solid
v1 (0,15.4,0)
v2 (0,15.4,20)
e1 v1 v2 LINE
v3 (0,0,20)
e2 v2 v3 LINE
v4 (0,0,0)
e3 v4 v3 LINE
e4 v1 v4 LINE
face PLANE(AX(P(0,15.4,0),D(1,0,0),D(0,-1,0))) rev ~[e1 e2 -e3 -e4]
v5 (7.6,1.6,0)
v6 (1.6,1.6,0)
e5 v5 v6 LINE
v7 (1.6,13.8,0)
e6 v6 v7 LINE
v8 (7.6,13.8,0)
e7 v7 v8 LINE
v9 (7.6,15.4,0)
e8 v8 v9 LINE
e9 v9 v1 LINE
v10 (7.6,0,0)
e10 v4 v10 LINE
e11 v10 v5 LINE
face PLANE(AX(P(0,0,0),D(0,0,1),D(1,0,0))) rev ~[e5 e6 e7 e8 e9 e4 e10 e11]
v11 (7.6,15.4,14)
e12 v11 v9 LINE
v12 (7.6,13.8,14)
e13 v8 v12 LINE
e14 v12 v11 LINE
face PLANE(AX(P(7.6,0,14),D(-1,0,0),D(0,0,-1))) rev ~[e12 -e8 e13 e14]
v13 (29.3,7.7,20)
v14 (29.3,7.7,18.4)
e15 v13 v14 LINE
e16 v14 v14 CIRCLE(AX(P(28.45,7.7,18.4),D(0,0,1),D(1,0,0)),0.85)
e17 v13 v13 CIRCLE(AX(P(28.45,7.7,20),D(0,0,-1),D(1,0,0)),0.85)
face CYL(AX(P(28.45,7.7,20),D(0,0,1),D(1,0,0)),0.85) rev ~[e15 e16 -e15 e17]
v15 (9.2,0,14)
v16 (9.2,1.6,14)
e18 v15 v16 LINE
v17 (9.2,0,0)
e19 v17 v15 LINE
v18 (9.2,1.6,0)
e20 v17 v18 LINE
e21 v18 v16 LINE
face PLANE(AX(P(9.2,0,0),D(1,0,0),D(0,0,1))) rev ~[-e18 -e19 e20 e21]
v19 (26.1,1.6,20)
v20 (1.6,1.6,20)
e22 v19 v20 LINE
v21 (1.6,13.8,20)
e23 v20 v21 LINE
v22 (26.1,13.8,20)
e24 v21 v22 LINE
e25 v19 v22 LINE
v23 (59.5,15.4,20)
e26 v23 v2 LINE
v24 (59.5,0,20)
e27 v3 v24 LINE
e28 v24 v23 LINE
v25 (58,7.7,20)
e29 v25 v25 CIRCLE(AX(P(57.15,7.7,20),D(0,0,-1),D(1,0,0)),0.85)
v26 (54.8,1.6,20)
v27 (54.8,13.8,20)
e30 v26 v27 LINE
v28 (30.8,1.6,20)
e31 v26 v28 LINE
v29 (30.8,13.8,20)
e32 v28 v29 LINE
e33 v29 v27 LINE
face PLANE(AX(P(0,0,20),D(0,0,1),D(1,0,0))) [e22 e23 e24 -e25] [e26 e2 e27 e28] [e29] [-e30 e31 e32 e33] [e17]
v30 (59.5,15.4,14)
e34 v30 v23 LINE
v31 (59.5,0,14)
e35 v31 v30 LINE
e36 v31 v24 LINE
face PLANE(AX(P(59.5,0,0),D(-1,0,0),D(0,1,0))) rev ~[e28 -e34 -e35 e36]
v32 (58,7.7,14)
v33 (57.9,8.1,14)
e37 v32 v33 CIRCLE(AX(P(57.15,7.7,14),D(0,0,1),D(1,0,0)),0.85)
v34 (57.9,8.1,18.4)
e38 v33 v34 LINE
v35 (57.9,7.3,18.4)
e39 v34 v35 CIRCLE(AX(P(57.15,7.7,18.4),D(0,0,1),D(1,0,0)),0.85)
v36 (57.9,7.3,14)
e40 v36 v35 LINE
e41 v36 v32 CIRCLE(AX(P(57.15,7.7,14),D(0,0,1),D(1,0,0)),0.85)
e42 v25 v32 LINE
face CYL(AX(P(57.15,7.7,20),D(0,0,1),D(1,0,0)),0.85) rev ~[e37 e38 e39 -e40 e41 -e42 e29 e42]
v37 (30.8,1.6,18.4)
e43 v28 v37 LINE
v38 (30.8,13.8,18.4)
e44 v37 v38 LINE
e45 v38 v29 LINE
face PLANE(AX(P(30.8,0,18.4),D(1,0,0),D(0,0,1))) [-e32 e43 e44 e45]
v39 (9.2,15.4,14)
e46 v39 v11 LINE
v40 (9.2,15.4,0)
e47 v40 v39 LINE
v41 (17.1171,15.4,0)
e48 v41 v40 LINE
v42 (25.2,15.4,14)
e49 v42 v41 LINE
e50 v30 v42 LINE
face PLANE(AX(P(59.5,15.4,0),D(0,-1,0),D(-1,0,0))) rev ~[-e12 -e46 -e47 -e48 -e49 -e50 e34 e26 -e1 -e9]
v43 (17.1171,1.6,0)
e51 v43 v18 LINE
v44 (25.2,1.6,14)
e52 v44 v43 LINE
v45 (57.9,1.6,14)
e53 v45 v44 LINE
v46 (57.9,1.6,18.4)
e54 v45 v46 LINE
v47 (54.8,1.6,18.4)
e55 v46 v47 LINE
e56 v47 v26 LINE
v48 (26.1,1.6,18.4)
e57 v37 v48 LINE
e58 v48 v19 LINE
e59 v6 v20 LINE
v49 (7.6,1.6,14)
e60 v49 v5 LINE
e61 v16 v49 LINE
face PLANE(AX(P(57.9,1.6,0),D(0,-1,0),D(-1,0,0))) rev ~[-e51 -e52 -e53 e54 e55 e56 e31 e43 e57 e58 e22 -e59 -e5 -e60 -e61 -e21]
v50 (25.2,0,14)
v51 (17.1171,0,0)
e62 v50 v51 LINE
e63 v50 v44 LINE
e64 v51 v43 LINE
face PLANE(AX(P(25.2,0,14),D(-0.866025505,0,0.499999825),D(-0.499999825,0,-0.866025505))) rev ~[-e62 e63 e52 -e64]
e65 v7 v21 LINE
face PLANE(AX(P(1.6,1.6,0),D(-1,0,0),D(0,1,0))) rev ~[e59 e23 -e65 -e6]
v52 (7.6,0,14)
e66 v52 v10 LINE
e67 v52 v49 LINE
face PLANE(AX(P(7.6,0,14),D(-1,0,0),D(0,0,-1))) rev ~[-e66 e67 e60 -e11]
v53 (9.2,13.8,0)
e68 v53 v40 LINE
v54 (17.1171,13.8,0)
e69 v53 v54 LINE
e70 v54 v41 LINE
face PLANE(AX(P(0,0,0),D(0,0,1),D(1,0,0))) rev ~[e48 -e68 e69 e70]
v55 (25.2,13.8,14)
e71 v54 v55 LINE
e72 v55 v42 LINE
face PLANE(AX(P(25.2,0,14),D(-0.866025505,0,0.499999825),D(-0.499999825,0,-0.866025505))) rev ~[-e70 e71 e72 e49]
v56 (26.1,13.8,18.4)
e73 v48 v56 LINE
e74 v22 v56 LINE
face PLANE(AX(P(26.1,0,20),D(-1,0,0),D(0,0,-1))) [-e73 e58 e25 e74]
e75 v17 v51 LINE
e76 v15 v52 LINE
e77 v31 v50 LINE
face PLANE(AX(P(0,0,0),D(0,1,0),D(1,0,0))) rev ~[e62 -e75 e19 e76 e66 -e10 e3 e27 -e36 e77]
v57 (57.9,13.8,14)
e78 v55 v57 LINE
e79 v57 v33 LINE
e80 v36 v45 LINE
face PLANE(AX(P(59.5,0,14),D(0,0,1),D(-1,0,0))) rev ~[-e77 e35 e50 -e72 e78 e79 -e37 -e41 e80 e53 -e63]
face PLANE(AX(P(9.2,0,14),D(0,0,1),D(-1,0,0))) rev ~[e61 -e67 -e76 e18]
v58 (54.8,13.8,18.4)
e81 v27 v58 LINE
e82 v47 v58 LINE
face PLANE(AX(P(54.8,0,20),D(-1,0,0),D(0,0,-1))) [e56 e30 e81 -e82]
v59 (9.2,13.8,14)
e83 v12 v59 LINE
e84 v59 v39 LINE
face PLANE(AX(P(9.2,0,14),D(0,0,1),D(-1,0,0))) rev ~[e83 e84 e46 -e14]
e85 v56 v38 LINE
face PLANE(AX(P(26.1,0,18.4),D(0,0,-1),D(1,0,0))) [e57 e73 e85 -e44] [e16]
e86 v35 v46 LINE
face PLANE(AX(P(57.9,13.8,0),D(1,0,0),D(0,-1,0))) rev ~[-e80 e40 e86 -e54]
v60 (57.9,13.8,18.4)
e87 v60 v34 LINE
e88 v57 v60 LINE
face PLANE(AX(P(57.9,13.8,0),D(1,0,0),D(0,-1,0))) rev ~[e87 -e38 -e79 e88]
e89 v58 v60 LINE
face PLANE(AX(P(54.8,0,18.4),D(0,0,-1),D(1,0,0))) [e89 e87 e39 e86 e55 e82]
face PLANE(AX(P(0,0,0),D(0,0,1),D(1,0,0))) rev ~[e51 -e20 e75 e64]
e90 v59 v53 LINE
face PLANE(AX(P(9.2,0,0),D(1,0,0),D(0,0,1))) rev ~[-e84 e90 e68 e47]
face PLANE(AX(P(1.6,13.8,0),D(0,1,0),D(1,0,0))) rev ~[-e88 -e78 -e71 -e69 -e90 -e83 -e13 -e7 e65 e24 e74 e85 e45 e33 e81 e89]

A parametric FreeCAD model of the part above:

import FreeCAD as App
import Part
import Sketcher
from FreeCAD import Vector
Q = App.Units.Quantity


def add_polygon(sketch, points):
    """Adds a closed chain of lines whose ends are joined by coincident constraints."""
    first, n = sketch.GeometryCount, len(points)
    for a, b in zip(points, points[1:] + points[:1]):
        sketch.addGeometry(Part.LineSegment(App.Vector(*a, 0), App.Vector(*b, 0)), False)
    for i in range(n):
        sketch.addConstraint(Sketcher.Constraint("Coincident", first + i, 2, first + (i + 1) % n, 1))

doc = App.newDocument("Part")
body = doc.addObject("PartDesign::Body", "Body")

# Sketch on XY plane
sketch1 = body.newObject("Sketcher::SketchObject", "Sketch")
sketch1.AttachmentSupport = (doc.getObject("XY_Plane"), [""])
sketch1.MapMode = "FlatFace"
add_polygon(sketch1, [(0, 15), (0, 0), (60, 0), (60, 15)])  # lines 0-3
add_polygon(sketch1, [(2, 2), (2, 14), (58, 14), (58, 2)])  # lines 4-7
sketch1.addConstraint([
    Sketcher.Constraint("Vertical", 0),
    Sketcher.Constraint("Horizontal", 1),
    Sketcher.Constraint("Vertical", 2),
    Sketcher.Constraint("Horizontal", 3),
    Sketcher.Constraint("Vertical", 4),
    Sketcher.Constraint("Horizontal", 5),
    Sketcher.Constraint("Vertical", 6),
    Sketcher.Constraint("Horizontal", 7),
    Sketcher.Constraint("Coincident", 0, 2, -1, 1),
    Sketcher.Constraint("DistanceX", 1, 1, 1, 2, Q("59.5 mm")),
    Sketcher.Constraint("DistanceY", 0, 2, 0, 1, Q("15.4 mm")),
    Sketcher.Constraint("DistanceX", -1, 1, 4, 2, Q("1.6 mm")),
    Sketcher.Constraint("DistanceY", -1, 1, 6, 2, Q("1.6 mm")),
    Sketcher.Constraint("DistanceY", 4, 2, 3, 2, Q("1.6 mm")),
    Sketcher.Constraint("DistanceX", 5, 2, 2, 2, Q("1.6 mm")),
])
pad1 = body.newObject("PartDesign::Pad", "Pad")
pad1.Profile = sketch1
pad1.Length = 20

# Sketch on XZ plane
sketch2 = body.newObject("Sketcher::SketchObject", "Sketch001")
sketch2.AttachmentSupport = (doc.getObject("XZ_Plane"), [""])
sketch2.MapMode = "FlatFace"
add_polygon(sketch2, [(7.6, 14), (7.6, 0), (9.2, 0), (9.2, 14)])  # lines 0-3
sketch2.addConstraint([
    Sketcher.Constraint("Vertical", 0),
    Sketcher.Constraint("Horizontal", 1),
    Sketcher.Constraint("Vertical", 2),
    Sketcher.Constraint("Horizontal", 3),
    Sketcher.Constraint("PointOnObject", 0, 2, -1),
    Sketcher.Constraint("DistanceY", 0, 2, 0, 1, Q("14 mm")),
    Sketcher.Constraint("DistanceX", 1, 1, 1, 2, Q("1.6 mm")),
    Sketcher.Constraint("DistanceX", -1, 1, 0, 2, Q("7.6 mm")),
])
pocket1 = body.newObject("PartDesign::Pocket", "Pocket")
pocket1.Profile = sketch2
pocket1.Length = 15.4

# Sketch on XZ plane
sketch3 = body.newObject("Sketcher::SketchObject", "Sketch002")
sketch3.AttachmentSupport = (doc.getObject("XZ_Plane"), [""])
sketch3.MapMode = "FlatFace"
add_polygon(sketch3, [(25, 14), (25, 0), (60, 0), (60, 14)])  # lines 0-3
sketch3.addConstraint([
    Sketcher.Constraint("Vertical", 0),
    Sketcher.Constraint("Horizontal", 1),
    Sketcher.Constraint("Vertical", 2),
    Sketcher.Constraint("Horizontal", 3),
    Sketcher.Constraint("PointOnObject", 0, 2, -1),
    Sketcher.Constraint("DistanceY", 0, 2, 0, 1, Q("14 mm")),
    Sketcher.Constraint("DistanceX", 1, 1, 1, 2, Q("34.3 mm")),
    Sketcher.Constraint("DistanceX", -1, 1, 0, 2, Q("25.2 mm")),
])
pocket2 = body.newObject("PartDesign::Pocket", "Pocket001")
pocket2.Profile = sketch3
pocket2.Length = 15.4

# Sketch on XZ plane
sketch4 = body.newObject("Sketcher::SketchObject", "Sketch003")
sketch4.AttachmentSupport = (doc.getObject("XZ_Plane"), [""])
sketch4.MapMode = "FlatFace"
add_polygon(sketch4, [(54.8, 18.4), (59.5, 18.4), (59.5, 20), (54.8, 20)])  # lines 0-3
add_polygon(sketch4, [(30.8, 18.4), (30.8, 20), (26.1, 20), (26.1, 18.4)])  # lines 4-7
sketch4.addConstraint([
    Sketcher.Constraint("Horizontal", 0),
    Sketcher.Constraint("Vertical", 1),
    Sketcher.Constraint("Horizontal", 2),
    Sketcher.Constraint("Vertical", 3),
    Sketcher.Constraint("Vertical", 4),
    Sketcher.Constraint("Horizontal", 5),
    Sketcher.Constraint("Vertical", 6),
    Sketcher.Constraint("Horizontal", 7),
    Sketcher.Constraint("Horizontal", 2, 2, 4, 2),
    Sketcher.Constraint("Horizontal", 3, 2, 6, 2),
    Sketcher.Constraint("Equal", 2, 5),
    Sketcher.Constraint("DistanceX", 0, 1, 0, 2, Q("4.7 mm")),
    Sketcher.Constraint("DistanceY", 1, 1, 1, 2, Q("1.6 mm")),
    Sketcher.Constraint("DistanceX", 4, 2, 2, 2, Q("24 mm")),
    Sketcher.Constraint("DistanceY", -1, 1, 1, 2, Q("20 mm")),
    Sketcher.Constraint("DistanceX", -1, 1, 0, 2, Q("59.5 mm")),
])
pad2 = body.newObject("PartDesign::Pad", "Pad001")
pad2.Profile = sketch4
pad2.Length = 13.8
pad2.Reversed = True

# Sketch on XY plane
sketch5 = body.newObject("Sketcher::SketchObject", "Sketch004")
sketch5.AttachmentSupport = (doc.getObject("XY_Plane"), [""])
sketch5.MapMode = "FlatFace"
sketch5.AttachmentOffset = App.Placement(Vector(0, 0, 20), App.Rotation())
sketch5.addGeometry([
    Part.Circle(Vector(57.1, 7.7, 0), Vector(0, 0, 1), 0.8),
    Part.Circle(Vector(28.4, 7.7, 0), Vector(0, 0, 1), 0.8),
], False)
sketch5.addConstraint([
    Sketcher.Constraint("Equal", 0, 1),
    Sketcher.Constraint("Horizontal", 0, 3, 1, 3),
    Sketcher.Constraint("Diameter", 0, Q("1.7 mm")),
    Sketcher.Constraint("DistanceY", -1, 1, 0, 3, Q("7.7 mm")),
    Sketcher.Constraint("DistanceX", 1, 3, 0, 3, Q("28.7 mm")),
    Sketcher.Constraint("DistanceX", -1, 1, 0, 3, Q("57.15 mm")),
])
pocket3 = body.newObject("PartDesign::Pocket", "Pocket002")
pocket3.Profile = sketch5
pocket3.Length = 6

# Sketch on XZ plane
sketch6 = body.newObject("Sketcher::SketchObject", "Sketch005")
sketch6.AttachmentSupport = (doc.getObject("XZ_Plane"), [""])
sketch6.MapMode = "FlatFace"
add_polygon(sketch6, [(25, 0), (25, 14), (17, 0)])  # lines 0-2
sketch6.addConstraint([
    Sketcher.Constraint("Vertical", 0),
    Sketcher.Constraint("Horizontal", 2),
    Sketcher.Constraint("PointOnObject", 1, 2, -1),
    Sketcher.Constraint("Angle", 1, Q("-120 deg")),
    Sketcher.Constraint("DistanceY", 0, 1, 0, 2, Q("14 mm")),
    Sketcher.Constraint("DistanceX", -1, 1, 0, 2, Q("25.2 mm")),
])
pocket4 = body.newObject("PartDesign::Pocket", "Pocket003")
pocket4.Profile = sketch6
pocket4.Length = 15.4

doc.recompute()
